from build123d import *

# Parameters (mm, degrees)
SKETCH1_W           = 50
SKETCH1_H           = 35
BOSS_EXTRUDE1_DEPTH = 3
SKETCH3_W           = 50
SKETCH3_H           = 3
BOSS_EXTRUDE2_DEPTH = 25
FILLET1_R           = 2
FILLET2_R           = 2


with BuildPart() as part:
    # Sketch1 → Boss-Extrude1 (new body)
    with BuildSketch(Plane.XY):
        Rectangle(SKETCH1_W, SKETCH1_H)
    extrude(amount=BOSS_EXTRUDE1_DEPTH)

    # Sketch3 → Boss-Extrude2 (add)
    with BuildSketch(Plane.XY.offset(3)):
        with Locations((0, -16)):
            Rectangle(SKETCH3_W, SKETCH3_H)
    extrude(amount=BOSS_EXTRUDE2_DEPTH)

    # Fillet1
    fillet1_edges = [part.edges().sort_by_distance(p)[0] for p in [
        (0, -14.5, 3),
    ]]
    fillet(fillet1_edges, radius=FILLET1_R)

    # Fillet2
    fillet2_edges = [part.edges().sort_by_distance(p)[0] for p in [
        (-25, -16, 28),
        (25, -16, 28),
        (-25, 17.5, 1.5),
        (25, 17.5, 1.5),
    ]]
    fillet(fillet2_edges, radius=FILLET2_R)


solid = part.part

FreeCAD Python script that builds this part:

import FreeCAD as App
import Part
import Sketcher

V = App.Vector


def edges_at(feature, points):
    """Names of the edges that pass closest to the given points."""
    edges = feature.Shape.Edges
    near = lambda p: min(range(len(edges)), key=lambda i: edges[i].distToShape(Part.Vertex(*p))[0])
    return sorted({f"Edge{near(p) + 1}" for p in points})


def add_polygon(sketch, points):
    """Adds a closed chain of lines whose ends are joined by coincident constraints."""
    first, n = sketch.GeometryCount, len(points)
    for a, b in zip(points, points[1:] + points[:1]):
        sketch.addGeometry(Part.LineSegment(App.Vector(*a, 0), App.Vector(*b, 0)), False)
    for i in range(n):
        sketch.addConstraint(Sketcher.Constraint("Coincident", first + i, 2, first + (i + 1) % n, 1))

doc = App.newDocument("Part")
body = doc.addObject("PartDesign::Body", "Body")

sketch1 = body.newObject("Sketcher::SketchObject", "Sketch")
sketch1.AttachmentSupport = (doc.getObject("XY_Plane"), [""])
sketch1.MapMode = "FlatFace"
add_polygon(sketch1, [(-25, 18), (-25, -18), (25, -18), (25, 18)])
sketch1.addConstraint([
    Sketcher.Constraint("Vertical", 0),
    Sketcher.Constraint("Horizontal", 1),
    Sketcher.Constraint("Vertical", 2),
    Sketcher.Constraint("Horizontal", 3),
    Sketcher.Constraint("Symmetric", 0, 2, 2, 2, -1, 1),
    Sketcher.Constraint("DistanceX", 1, 1, 1, 2, 50.0),
    Sketcher.Constraint("DistanceY", 0, 2, 0, 1, 35.0),
])
pad1 = body.newObject("PartDesign::Pad", "Pad")
pad1.Profile = sketch1
pad1.Length = 3

sketch2 = body.newObject("Sketcher::SketchObject", "Sketch001")
sketch2.AttachmentSupport = (doc.getObject("XY_Plane"), [""])
sketch2.MapMode = "FlatFace"
sketch2.AttachmentOffset = App.Placement(V(0, 0, 3), App.Rotation())
add_polygon(sketch2, [(-25, -14.5), (-25, -17.5), (25, -17.5), (25, -14.5)])
sketch2.addConstraint([
    Sketcher.Constraint("Vertical", 0),
    Sketcher.Constraint("Horizontal", 1),
    Sketcher.Constraint("Vertical", 2),
    Sketcher.Constraint("Horizontal", 3),
    Sketcher.Constraint("DistanceX", 1, 1, 1, 2, 50.0),
    Sketcher.Constraint("DistanceY", 0, 2, 0, 1, 3.0),
    Sketcher.Constraint("DistanceX", 0, 2, -1, 1, 25.0),
    Sketcher.Constraint("DistanceY", 0, 2, -1, 1, 17.5),
])
pad2 = body.newObject("PartDesign::Pad", "Pad001")
pad2.Profile = sketch2
pad2.Length = 25
doc.recompute()

fillet = body.newObject("PartDesign::Fillet", "Fillet")
fillet.Base = (pad2, edges_at(pad2, [(0, -14.5, 3)]))
fillet.Radius = 2
doc.recompute()

fillet2 = body.newObject("PartDesign::Fillet", "Fillet001")
fillet2.Base = (fillet, edges_at(fillet, [
    (-25, -16, 28),
    (25, -16, 28),
    (-25, 17.5, 1.5),
    (25, 17.5, 1.5),
]))
fillet2.Radius = 2

doc.recompute()
